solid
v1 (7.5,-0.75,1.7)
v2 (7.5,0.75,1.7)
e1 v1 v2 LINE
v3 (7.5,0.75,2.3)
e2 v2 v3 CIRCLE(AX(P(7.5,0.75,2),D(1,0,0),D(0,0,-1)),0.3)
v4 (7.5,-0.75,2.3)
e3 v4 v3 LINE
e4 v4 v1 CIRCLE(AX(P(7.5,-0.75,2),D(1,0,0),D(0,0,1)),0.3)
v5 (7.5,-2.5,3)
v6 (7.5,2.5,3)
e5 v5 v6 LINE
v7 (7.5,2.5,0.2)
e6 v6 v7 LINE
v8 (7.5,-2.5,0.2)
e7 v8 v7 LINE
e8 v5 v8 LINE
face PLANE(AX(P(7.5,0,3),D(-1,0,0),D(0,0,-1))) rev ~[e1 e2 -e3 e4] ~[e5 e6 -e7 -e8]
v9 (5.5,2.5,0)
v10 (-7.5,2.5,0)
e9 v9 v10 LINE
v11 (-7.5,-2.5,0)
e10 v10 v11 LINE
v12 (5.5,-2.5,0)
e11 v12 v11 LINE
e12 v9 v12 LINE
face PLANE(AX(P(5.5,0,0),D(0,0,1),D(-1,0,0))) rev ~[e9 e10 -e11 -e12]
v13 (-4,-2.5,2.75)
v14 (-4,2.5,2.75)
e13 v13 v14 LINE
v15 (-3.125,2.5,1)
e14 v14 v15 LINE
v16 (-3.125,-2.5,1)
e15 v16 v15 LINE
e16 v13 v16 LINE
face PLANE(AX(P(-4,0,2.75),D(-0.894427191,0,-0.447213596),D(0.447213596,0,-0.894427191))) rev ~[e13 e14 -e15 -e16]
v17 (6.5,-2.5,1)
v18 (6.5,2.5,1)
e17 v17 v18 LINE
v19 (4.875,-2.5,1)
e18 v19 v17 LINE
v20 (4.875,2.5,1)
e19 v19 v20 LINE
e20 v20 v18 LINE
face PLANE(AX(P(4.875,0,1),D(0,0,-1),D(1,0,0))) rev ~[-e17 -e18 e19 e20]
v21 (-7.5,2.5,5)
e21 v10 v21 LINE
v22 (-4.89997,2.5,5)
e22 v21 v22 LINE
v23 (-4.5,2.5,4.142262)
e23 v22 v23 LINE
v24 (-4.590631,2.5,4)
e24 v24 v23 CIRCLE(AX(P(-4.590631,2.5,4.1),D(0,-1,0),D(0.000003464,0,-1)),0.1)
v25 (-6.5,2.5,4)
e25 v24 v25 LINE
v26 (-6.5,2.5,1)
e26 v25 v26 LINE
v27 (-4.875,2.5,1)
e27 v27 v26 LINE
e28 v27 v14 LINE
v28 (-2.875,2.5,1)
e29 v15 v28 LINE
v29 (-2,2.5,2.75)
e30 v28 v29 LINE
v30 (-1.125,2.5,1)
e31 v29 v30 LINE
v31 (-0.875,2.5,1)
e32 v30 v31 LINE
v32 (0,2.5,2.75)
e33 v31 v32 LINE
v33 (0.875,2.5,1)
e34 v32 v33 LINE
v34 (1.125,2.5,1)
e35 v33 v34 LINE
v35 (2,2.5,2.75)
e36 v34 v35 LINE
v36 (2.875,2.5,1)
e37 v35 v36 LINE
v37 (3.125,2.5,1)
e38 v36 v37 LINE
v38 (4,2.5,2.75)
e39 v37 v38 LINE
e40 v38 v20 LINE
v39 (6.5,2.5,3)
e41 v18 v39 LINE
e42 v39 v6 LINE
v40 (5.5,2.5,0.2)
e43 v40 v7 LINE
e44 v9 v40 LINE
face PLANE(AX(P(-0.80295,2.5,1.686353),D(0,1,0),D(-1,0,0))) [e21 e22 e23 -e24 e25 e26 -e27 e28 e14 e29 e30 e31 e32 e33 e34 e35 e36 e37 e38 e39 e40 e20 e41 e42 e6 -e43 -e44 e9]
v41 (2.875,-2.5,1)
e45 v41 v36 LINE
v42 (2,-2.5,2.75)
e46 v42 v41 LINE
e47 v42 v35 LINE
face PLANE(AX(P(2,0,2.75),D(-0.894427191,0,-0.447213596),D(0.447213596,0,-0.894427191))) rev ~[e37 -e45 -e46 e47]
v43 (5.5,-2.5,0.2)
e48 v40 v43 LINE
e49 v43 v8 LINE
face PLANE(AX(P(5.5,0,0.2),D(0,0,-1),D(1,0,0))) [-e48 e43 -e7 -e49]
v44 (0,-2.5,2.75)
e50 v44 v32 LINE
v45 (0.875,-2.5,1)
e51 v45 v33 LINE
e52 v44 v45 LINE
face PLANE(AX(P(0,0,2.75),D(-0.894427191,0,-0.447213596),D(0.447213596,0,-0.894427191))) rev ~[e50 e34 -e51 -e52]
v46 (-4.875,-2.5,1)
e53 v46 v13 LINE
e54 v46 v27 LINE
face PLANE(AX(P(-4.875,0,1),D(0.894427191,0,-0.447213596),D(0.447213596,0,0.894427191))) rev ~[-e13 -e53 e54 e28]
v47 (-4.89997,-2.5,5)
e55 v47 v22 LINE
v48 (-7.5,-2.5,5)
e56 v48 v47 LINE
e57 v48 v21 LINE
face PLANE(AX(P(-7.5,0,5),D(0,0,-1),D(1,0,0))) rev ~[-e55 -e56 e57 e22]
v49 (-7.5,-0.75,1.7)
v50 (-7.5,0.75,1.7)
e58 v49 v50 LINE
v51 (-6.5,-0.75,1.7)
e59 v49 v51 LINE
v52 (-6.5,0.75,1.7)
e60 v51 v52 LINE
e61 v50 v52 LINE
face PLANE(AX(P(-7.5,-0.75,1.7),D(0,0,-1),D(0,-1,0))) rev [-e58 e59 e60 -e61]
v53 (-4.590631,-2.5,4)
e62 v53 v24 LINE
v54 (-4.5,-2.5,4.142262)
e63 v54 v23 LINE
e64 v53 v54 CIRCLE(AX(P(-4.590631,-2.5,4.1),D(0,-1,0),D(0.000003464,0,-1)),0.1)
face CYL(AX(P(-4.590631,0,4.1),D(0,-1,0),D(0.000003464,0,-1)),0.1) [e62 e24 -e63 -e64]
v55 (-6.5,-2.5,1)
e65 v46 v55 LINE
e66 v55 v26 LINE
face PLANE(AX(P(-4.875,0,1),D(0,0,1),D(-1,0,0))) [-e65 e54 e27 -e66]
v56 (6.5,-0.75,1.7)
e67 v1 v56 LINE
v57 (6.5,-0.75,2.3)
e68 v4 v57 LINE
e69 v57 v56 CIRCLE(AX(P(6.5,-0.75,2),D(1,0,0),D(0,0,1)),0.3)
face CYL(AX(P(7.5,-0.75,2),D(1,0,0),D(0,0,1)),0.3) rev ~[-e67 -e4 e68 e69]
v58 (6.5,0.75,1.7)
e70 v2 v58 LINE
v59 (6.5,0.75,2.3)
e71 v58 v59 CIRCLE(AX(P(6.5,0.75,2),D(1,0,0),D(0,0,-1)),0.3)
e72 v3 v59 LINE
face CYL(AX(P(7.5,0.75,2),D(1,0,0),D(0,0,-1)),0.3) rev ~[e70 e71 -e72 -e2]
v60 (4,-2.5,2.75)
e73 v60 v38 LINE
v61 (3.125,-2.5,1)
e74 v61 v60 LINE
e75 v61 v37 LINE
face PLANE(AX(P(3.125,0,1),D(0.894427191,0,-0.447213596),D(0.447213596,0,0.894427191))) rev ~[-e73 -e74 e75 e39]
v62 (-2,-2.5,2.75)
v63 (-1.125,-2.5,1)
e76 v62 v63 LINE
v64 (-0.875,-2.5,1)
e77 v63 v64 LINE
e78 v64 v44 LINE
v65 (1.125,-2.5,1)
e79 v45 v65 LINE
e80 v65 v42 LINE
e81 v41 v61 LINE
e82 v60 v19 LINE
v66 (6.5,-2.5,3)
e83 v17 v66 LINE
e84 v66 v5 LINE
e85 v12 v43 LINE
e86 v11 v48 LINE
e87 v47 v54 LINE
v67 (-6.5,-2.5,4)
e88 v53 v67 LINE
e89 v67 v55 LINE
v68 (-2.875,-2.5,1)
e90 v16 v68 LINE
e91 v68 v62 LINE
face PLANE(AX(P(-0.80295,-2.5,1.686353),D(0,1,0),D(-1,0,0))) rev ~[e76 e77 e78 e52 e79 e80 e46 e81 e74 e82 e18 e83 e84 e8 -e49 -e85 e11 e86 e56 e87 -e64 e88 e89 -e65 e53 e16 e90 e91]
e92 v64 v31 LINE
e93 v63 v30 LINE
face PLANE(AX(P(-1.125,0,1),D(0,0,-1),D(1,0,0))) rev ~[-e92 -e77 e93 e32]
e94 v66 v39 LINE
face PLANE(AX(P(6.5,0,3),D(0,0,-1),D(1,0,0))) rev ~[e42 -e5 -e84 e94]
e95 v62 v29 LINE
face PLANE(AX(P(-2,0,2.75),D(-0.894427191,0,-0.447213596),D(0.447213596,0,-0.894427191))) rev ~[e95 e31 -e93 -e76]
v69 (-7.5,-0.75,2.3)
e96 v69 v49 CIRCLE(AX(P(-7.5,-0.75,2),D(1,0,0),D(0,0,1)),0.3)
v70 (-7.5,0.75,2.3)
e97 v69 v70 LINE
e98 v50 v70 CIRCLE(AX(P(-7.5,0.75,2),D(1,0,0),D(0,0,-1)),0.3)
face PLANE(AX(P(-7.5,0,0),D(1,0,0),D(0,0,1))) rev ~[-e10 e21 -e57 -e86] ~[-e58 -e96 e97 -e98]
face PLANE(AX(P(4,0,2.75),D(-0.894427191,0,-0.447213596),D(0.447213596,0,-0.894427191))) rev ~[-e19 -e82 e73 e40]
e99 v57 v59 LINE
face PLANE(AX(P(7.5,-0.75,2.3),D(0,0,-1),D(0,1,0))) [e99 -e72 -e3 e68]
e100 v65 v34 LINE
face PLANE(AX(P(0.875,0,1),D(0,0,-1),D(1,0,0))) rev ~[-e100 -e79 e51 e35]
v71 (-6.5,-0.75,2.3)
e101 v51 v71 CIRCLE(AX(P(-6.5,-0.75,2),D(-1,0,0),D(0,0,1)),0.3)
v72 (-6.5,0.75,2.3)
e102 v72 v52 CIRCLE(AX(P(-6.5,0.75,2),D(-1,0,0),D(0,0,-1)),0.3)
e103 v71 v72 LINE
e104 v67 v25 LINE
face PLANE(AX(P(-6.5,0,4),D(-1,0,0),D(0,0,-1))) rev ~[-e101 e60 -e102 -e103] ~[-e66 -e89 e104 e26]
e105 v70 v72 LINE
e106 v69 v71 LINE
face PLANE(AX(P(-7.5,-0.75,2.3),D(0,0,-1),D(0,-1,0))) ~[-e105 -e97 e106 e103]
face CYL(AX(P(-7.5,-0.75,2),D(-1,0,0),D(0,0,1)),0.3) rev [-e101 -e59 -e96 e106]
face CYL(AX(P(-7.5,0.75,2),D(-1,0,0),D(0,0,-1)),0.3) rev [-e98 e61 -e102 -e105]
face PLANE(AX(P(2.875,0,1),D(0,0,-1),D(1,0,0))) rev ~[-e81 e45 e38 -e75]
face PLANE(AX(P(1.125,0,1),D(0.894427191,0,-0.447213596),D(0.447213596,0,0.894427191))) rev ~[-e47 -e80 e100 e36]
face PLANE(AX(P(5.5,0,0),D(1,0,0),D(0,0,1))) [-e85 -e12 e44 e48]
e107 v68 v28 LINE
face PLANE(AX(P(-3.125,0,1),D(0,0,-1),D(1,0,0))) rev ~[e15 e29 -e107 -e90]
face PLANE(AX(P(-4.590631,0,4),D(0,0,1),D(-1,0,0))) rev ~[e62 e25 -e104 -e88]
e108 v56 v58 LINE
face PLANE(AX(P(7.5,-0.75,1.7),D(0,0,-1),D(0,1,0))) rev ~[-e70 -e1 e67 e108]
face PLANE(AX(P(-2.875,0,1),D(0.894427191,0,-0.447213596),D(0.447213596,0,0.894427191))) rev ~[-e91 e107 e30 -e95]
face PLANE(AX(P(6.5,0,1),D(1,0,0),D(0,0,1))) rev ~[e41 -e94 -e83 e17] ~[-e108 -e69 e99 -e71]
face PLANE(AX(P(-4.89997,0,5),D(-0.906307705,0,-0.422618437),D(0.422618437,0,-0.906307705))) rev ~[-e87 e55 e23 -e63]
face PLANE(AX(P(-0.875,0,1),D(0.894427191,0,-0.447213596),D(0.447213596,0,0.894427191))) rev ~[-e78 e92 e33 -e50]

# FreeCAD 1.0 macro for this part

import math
import FreeCAD as App
import Part
import Sketcher
Q = App.Units.Quantity

doc = App.newDocument("Part")
body = doc.addObject("PartDesign::Body", "Body")

sketch1 = doc.addObject("Sketcher::SketchObject", "Sketch")
body.addObject(sketch1)
sketch1.AttachmentSupport = (doc.XZ_Plane, [""])
sketch1.MapMode = "FlatFace"
sketch1.addGeometry([
    Part.LineSegment(App.Vector(-7.5, 5, 0), App.Vector(-7.5, 0, 0)),
    Part.LineSegment(App.Vector(-7.5, 0, 0), App.Vector(5.5, 0, 0)),
    Part.LineSegment(App.Vector(5.5, 0, 0), App.Vector(5.5, 0.2, 0)),
    Part.LineSegment(App.Vector(5.5, 0.2, 0), App.Vector(7.5, 0.2, 0)),
    Part.LineSegment(App.Vector(7.5, 0.2, 0), App.Vector(7.5, 3, 0)),
    Part.LineSegment(App.Vector(7.5, 3, 0), App.Vector(6.5, 3, 0)),
    Part.LineSegment(App.Vector(6.5, 3, 0), App.Vector(6.5, 1, 0)),
    Part.LineSegment(App.Vector(6.5, 1, 0), App.Vector(4.88, 1, 0)),
    Part.LineSegment(App.Vector(4.88, 1, 0), App.Vector(4, 2.75, 0)),
    Part.LineSegment(App.Vector(4, 2.75, 0), App.Vector(3.12, 1, 0)),
    Part.LineSegment(App.Vector(3.12, 1, 0), App.Vector(2.88, 1, 0)),
    Part.LineSegment(App.Vector(2.88, 1, 0), App.Vector(2, 2.75, 0)),
    Part.LineSegment(App.Vector(2, 2.75, 0), App.Vector(1.12, 1, 0)),
    Part.LineSegment(App.Vector(1.12, 1, 0), App.Vector(0.88, 1, 0)),
    Part.LineSegment(App.Vector(0.88, 1, 0), App.Vector(0, 2.75, 0)),
    Part.LineSegment(App.Vector(0, 2.75, 0), App.Vector(-0.88, 1, 0)),
    Part.LineSegment(App.Vector(-0.88, 1, 0), App.Vector(-1.12, 1, 0)),
    Part.LineSegment(App.Vector(-1.12, 1, 0), App.Vector(-2, 2.75, 0)),
    Part.LineSegment(App.Vector(-2, 2.75, 0), App.Vector(-2.88, 1, 0)),
    Part.LineSegment(App.Vector(-2.88, 1, 0), App.Vector(-3.12, 1, 0)),
    Part.LineSegment(App.Vector(-3.12, 1, 0), App.Vector(-4, 2.75, 0)),
    Part.LineSegment(App.Vector(-4, 2.75, 0), App.Vector(-4.88, 1, 0)),
    Part.LineSegment(App.Vector(-4.88, 1, 0), App.Vector(-6.5, 1, 0)),
    Part.LineSegment(App.Vector(-6.5, 1, 0), App.Vector(-6.5, 4, 0)),
    Part.LineSegment(App.Vector(-6.5, 4, 0), App.Vector(-4.59, 4, 0)),
    Part.ArcOfCircle(Part.Circle(App.Vector(-4.59, 4.1, 0), App.Vector(0, 0, 1), 0.1), math.radians(-90), math.radians(25)),
    Part.LineSegment(App.Vector(-4.5, 4.14, 0), App.Vector(-4.9, 5, 0)),
    Part.LineSegment(App.Vector(-4.9, 5, 0), App.Vector(-7.5, 5, 0)),
], False)
sketch1.addConstraint([
    Sketcher.Constraint("Coincident", 0, 2, 1, 1),
    Sketcher.Constraint("Coincident", 1, 2, 2, 1),
    Sketcher.Constraint("Coincident", 2, 2, 3, 1),
    Sketcher.Constraint("Coincident", 3, 2, 4, 1),
    Sketcher.Constraint("Coincident", 4, 2, 5, 1),
    Sketcher.Constraint("Coincident", 5, 2, 6, 1),
    Sketcher.Constraint("Coincident", 6, 2, 7, 1),
    Sketcher.Constraint("Coincident", 7, 2, 8, 1),
    Sketcher.Constraint("Coincident", 8, 2, 9, 1),
    Sketcher.Constraint("Coincident", 9, 2, 10, 1),
    Sketcher.Constraint("Coincident", 10, 2, 11, 1),
    Sketcher.Constraint("Coincident", 11, 2, 12, 1),
    Sketcher.Constraint("Coincident", 12, 2, 13, 1),
    Sketcher.Constraint("Coincident", 13, 2, 14, 1),
    Sketcher.Constraint("Coincident", 14, 2, 15, 1),
    Sketcher.Constraint("Coincident", 15, 2, 16, 1),
    Sketcher.Constraint("Coincident", 16, 2, 17, 1),
    Sketcher.Constraint("Coincident", 17, 2, 18, 1),
    Sketcher.Constraint("Coincident", 18, 2, 19, 1),
    Sketcher.Constraint("Coincident", 19, 2, 20, 1),
    Sketcher.Constraint("Coincident", 20, 2, 21, 1),
    Sketcher.Constraint("Coincident", 21, 2, 22, 1),
    Sketcher.Constraint("Coincident", 22, 2, 23, 1),
    Sketcher.Constraint("Coincident", 23, 2, 24, 1),
    Sketcher.Constraint("Coincident", 24, 2, 25, 1),
    Sketcher.Constraint("Coincident", 25, 2, 26, 1),
    Sketcher.Constraint("Coincident", 26, 2, 27, 1),
    Sketcher.Constraint("Coincident", 27, 2, 0, 1),
    Sketcher.Constraint("Vertical", 0),
    Sketcher.Constraint("Horizontal", 1),
    Sketcher.Constraint("Vertical", 2),
    Sketcher.Constraint("Horizontal", 3),
    Sketcher.Constraint("Vertical", 4),
    Sketcher.Constraint("Horizontal", 5),
    Sketcher.Constraint("Vertical", 6),
    Sketcher.Constraint("Horizontal", 7),
    Sketcher.Constraint("Horizontal", 10),
    Sketcher.Constraint("Horizontal", 13),
    Sketcher.Constraint("Horizontal", 16),
    Sketcher.Constraint("Horizontal", 19),
    Sketcher.Constraint("Horizontal", 22),
    Sketcher.Constraint("Vertical", 23),
    Sketcher.Constraint("Horizontal", 24),
    Sketcher.Constraint("Horizontal", 27),
    Sketcher.Constraint("Symmetric", 13, 2, 15, 2, -2),
    Sketcher.Constraint("Symmetric", 11, 2, 17, 2, -2),
    Sketcher.Constraint("Symmetric", 10, 2, 18, 2, -2),
    Sketcher.Constraint("Symmetric", 8, 2, 20, 2, -2),
    Sketcher.Constraint("Symmetric", 7, 2, 21, 2, -2),
    Sketcher.Constraint("PointOnObject", 0, 2, -1),
    Sketcher.Constraint("PointOnObject", 14, 2, -2),
    Sketcher.Constraint("Parallel", 8, 11),
    Sketcher.Constraint("Parallel", 9, 12),
    Sketcher.Constraint("Parallel", 11, 14),
    Sketcher.Constraint("Parallel", 12, 15),
    Sketcher.Constraint("Parallel", 14, 17),
    Sketcher.Constraint("Parallel", 17, 20),
    Sketcher.Constraint("Horizontal", 7, 2, 9, 2),
    Sketcher.Constraint("Horizontal", 8, 2, 11, 2),
    Sketcher.Constraint("Horizontal", 10, 2, 12, 2),
    Sketcher.Constraint("Horizontal", 11, 2, 14, 2),
    Sketcher.Constraint("Vertical", 25, 3, 24, 2),
    Sketcher.Constraint("Equal", 10, 13),
    Sketcher.Constraint("Equal", 7, 22),
    Sketcher.Constraint("Equal", 3, 6),
    Sketcher.Constraint("Radius", 25, Q("0.1 mm")),
    Sketcher.Constraint("DistanceX", 1, 1, 1, 2, Q("13 mm")),
    Sketcher.Constraint("DistanceX", 3, 1, 3, 2, Q("2 mm")),
    Sketcher.Constraint("DistanceX", 5, 2, 5, 1, Q("1 mm")),
    Sketcher.Constraint("DistanceY", 0, 2, 0, 1, Q("5 mm")),
    Sketcher.Constraint("DistanceY", 23, 1, 23, 2, Q("3 mm")),
    Sketcher.Constraint("Angle", 26, Q("115.000011 deg")),
    Sketcher.Constraint("DistanceY", 2, 1, 2, 2, Q("0.2 mm")),
    Sketcher.Constraint("DistanceY", 4, 1, 4, 2, Q("2.8 mm")),
    Sketcher.Constraint("DistanceX", -1, 1, 8, 2, Q("4 mm")),
    Sketcher.Constraint("DistanceX", 0, 2, 22, 2, Q("1 mm")),
    Sketcher.Constraint("DistanceX", 23, 2, 25, 2, Q("2 mm")),
    Sketcher.Constraint("DistanceX", 10, 2, 10, 1, Q("0.25 mm")),
    Sketcher.Constraint("DistanceY", -1, 1, 8, 2, Q("2.75 mm")),
    Sketcher.Constraint("DistanceX", 24, 1, 24, 2, Q("1.909369 mm")),
])
pad1 = doc.addObject("PartDesign::Pad", "Pad")
body.addObject(pad1)
pad1.Profile = sketch1
pad1.Length = 5
pad1.Midplane = True

sketch2 = doc.addObject("Sketcher::SketchObject", "Sketch001")
body.addObject(sketch2)
sketch2.AttachmentSupport = (doc.YZ_Plane, [""])
sketch2.MapMode = "FlatFace"
sketch2.AttachmentOffset = App.Placement(App.Vector(0, 0, 7.5), App.Rotation())
sketch2.addGeometry([
    Part.ArcOfCircle(Part.Circle(App.Vector(-0.75, 2, 0), App.Vector(0, 0, 1), 0.3), math.radians(90), math.radians(270)),
    Part.LineSegment(App.Vector(-0.75, 1.7, 0), App.Vector(0.75, 1.7, 0)),
    Part.ArcOfCircle(Part.Circle(App.Vector(0.75, 2, 0), App.Vector(0, 0, 1), 0.3), math.radians(-90), math.radians(90)),
    Part.LineSegment(App.Vector(0.75, 2.3, 0), App.Vector(-0.75, 2.3, 0)),
], False)
sketch2.addConstraint([
    Sketcher.Constraint("Tangent", 0, 2, 1, 1),
    Sketcher.Constraint("Tangent", 1, 2, 2, 1),
    Sketcher.Constraint("Tangent", 2, 2, 3, 1),
    Sketcher.Constraint("Tangent", 3, 2, 0, 1),
    Sketcher.Constraint("Horizontal", 1),
    Sketcher.Constraint("Horizontal", 3),
    Sketcher.Constraint("Radius", 0, Q("0.3 mm")),
    Sketcher.Constraint("DistanceX", 1, 1, 1, 2, Q("1.5 mm")),
    Sketcher.Constraint("DistanceY", -1, 1, 0, 3, Q("2 mm")),
    Sketcher.Constraint("DistanceX", 0, 3, -1, 1, Q("0.75 mm")),
])
pocket1 = doc.addObject("PartDesign::Pocket", "Pocket")
body.addObject(pocket1)
pocket1.Profile = sketch2
pocket1.Length = 2
doc.recompute()

mirrored = doc.addObject("PartDesign::Mirrored", "Mirrored")
body.addObject(mirrored)
mirrored.Originals = [pocket1]
mirrored.MirrorPlane = (doc.YZ_Plane, [""])
body.Tip = mirrored

doc.recompute()
